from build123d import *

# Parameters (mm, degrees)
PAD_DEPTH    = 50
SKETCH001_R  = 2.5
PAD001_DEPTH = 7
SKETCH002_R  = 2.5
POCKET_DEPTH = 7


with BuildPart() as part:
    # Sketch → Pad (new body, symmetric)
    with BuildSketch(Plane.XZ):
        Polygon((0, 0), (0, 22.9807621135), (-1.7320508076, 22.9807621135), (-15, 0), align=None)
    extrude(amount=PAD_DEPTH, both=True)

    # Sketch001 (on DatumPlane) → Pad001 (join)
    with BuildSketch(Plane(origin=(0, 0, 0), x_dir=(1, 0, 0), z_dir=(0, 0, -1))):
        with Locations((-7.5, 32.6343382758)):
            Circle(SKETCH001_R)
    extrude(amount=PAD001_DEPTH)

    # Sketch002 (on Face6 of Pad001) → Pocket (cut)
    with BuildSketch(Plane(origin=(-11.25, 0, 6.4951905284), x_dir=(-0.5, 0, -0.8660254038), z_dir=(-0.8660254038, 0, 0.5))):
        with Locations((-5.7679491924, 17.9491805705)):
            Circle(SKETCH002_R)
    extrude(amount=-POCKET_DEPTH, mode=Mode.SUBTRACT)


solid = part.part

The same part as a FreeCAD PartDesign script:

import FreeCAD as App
import Part
import Sketcher
Q = App.Units.Quantity

doc = App.newDocument("Part")
body = doc.addObject("PartDesign::Body", "Body")

sketch1 = body.newObject("Sketcher::SketchObject", "Sketch")
sketch1.AttachmentSupport = (doc.getObject("XZ_Plane"), [""])
sketch1.MapMode = "FlatFace"
sketch1.addGeometry([
    Part.LineSegment(App.Vector(0, 0, 0), App.Vector(0, 23, 0)),
    Part.LineSegment(App.Vector(0, 23, 0), App.Vector(-1.7, 23, 0)),
    Part.LineSegment(App.Vector(-1.7, 23, 0), App.Vector(-15, 0, 0)),
    Part.LineSegment(App.Vector(-15, 0, 0), App.Vector(0, 0, 0)),
], False)
sketch1.addConstraint([
    Sketcher.Constraint("Coincident", 0, 2, 1, 1),
    Sketcher.Constraint("Coincident", 1, 2, 2, 1),
    Sketcher.Constraint("Coincident", 2, 2, 3, 1),
    Sketcher.Constraint("Coincident", 3, 2, 0, 1),
    Sketcher.Constraint("Vertical", 0),
    Sketcher.Constraint("Horizontal", 1),
    Sketcher.Constraint("Horizontal", 3),
    Sketcher.Constraint("Coincident", 3, 2, -1, 1),
    Sketcher.Constraint("DistanceX", 3, 1, 3, 2, Q("15 mm")),
    Sketcher.Constraint("Angle", 2, Q("-120 deg")),
    Sketcher.Constraint("Distance", 2, Q("26.535898 mm")),
])
pad1 = body.newObject("PartDesign::Pad", "Pad")
pad1.Profile = sketch1
pad1.Length = 100
pad1.Midplane = True

sketch2 = body.newObject("Sketcher::SketchObject", "Sketch001")
sketch2.AttachmentSupport = (doc.getObject("XY_Plane"), [""])
sketch2.MapMode = "FlatFace"
sketch2.addGeometry(Part.Circle(App.Vector(-7.5, -32.6, 0), App.Vector(0, 0, 1), 2.5), False)
sketch2.addConstraint([
    Sketcher.Constraint("Diameter", 0, Q("5 mm")),
    Sketcher.Constraint("DistanceX", 0, 3, -1, 1, Q("7.5 mm")),
    Sketcher.Constraint("DistanceY", 0, 3, -1, 1, Q("32.634338 mm")),
])
pad2 = body.newObject("PartDesign::Pad", "Pad001")
pad2.Profile = sketch2
pad2.Length = 7
pad2.Reversed = True

sketch3 = body.newObject("Sketcher::SketchObject", "Sketch002")
sketch3.Placement = App.Placement(App.Vector(-11.25, 0, 6.495191), App.Rotation(App.Vector(-0.5, 0, -0.866025404), App.Vector(0, -1, 0), App.Vector(-0.866025404, 0, 0.5), "ZXY"))
sketch3.addGeometry(Part.Circle(App.Vector(-5.8, 17.9, 0), App.Vector(0, 0, 1), 2.5), False)
sketch3.addConstraint([
    Sketcher.Constraint("Diameter", 0, Q("5 mm")),
    Sketcher.Constraint("DistanceX", 0, 3, -1, 1, Q("5.767949 mm")),
    Sketcher.Constraint("DistanceY", -1, 1, 0, 3, Q("17.949181 mm")),
])
pocket1 = body.newObject("PartDesign::Pocket", "Pocket")
pocket1.Profile = sketch3
pocket1.Length = 7

doc.recompute()
